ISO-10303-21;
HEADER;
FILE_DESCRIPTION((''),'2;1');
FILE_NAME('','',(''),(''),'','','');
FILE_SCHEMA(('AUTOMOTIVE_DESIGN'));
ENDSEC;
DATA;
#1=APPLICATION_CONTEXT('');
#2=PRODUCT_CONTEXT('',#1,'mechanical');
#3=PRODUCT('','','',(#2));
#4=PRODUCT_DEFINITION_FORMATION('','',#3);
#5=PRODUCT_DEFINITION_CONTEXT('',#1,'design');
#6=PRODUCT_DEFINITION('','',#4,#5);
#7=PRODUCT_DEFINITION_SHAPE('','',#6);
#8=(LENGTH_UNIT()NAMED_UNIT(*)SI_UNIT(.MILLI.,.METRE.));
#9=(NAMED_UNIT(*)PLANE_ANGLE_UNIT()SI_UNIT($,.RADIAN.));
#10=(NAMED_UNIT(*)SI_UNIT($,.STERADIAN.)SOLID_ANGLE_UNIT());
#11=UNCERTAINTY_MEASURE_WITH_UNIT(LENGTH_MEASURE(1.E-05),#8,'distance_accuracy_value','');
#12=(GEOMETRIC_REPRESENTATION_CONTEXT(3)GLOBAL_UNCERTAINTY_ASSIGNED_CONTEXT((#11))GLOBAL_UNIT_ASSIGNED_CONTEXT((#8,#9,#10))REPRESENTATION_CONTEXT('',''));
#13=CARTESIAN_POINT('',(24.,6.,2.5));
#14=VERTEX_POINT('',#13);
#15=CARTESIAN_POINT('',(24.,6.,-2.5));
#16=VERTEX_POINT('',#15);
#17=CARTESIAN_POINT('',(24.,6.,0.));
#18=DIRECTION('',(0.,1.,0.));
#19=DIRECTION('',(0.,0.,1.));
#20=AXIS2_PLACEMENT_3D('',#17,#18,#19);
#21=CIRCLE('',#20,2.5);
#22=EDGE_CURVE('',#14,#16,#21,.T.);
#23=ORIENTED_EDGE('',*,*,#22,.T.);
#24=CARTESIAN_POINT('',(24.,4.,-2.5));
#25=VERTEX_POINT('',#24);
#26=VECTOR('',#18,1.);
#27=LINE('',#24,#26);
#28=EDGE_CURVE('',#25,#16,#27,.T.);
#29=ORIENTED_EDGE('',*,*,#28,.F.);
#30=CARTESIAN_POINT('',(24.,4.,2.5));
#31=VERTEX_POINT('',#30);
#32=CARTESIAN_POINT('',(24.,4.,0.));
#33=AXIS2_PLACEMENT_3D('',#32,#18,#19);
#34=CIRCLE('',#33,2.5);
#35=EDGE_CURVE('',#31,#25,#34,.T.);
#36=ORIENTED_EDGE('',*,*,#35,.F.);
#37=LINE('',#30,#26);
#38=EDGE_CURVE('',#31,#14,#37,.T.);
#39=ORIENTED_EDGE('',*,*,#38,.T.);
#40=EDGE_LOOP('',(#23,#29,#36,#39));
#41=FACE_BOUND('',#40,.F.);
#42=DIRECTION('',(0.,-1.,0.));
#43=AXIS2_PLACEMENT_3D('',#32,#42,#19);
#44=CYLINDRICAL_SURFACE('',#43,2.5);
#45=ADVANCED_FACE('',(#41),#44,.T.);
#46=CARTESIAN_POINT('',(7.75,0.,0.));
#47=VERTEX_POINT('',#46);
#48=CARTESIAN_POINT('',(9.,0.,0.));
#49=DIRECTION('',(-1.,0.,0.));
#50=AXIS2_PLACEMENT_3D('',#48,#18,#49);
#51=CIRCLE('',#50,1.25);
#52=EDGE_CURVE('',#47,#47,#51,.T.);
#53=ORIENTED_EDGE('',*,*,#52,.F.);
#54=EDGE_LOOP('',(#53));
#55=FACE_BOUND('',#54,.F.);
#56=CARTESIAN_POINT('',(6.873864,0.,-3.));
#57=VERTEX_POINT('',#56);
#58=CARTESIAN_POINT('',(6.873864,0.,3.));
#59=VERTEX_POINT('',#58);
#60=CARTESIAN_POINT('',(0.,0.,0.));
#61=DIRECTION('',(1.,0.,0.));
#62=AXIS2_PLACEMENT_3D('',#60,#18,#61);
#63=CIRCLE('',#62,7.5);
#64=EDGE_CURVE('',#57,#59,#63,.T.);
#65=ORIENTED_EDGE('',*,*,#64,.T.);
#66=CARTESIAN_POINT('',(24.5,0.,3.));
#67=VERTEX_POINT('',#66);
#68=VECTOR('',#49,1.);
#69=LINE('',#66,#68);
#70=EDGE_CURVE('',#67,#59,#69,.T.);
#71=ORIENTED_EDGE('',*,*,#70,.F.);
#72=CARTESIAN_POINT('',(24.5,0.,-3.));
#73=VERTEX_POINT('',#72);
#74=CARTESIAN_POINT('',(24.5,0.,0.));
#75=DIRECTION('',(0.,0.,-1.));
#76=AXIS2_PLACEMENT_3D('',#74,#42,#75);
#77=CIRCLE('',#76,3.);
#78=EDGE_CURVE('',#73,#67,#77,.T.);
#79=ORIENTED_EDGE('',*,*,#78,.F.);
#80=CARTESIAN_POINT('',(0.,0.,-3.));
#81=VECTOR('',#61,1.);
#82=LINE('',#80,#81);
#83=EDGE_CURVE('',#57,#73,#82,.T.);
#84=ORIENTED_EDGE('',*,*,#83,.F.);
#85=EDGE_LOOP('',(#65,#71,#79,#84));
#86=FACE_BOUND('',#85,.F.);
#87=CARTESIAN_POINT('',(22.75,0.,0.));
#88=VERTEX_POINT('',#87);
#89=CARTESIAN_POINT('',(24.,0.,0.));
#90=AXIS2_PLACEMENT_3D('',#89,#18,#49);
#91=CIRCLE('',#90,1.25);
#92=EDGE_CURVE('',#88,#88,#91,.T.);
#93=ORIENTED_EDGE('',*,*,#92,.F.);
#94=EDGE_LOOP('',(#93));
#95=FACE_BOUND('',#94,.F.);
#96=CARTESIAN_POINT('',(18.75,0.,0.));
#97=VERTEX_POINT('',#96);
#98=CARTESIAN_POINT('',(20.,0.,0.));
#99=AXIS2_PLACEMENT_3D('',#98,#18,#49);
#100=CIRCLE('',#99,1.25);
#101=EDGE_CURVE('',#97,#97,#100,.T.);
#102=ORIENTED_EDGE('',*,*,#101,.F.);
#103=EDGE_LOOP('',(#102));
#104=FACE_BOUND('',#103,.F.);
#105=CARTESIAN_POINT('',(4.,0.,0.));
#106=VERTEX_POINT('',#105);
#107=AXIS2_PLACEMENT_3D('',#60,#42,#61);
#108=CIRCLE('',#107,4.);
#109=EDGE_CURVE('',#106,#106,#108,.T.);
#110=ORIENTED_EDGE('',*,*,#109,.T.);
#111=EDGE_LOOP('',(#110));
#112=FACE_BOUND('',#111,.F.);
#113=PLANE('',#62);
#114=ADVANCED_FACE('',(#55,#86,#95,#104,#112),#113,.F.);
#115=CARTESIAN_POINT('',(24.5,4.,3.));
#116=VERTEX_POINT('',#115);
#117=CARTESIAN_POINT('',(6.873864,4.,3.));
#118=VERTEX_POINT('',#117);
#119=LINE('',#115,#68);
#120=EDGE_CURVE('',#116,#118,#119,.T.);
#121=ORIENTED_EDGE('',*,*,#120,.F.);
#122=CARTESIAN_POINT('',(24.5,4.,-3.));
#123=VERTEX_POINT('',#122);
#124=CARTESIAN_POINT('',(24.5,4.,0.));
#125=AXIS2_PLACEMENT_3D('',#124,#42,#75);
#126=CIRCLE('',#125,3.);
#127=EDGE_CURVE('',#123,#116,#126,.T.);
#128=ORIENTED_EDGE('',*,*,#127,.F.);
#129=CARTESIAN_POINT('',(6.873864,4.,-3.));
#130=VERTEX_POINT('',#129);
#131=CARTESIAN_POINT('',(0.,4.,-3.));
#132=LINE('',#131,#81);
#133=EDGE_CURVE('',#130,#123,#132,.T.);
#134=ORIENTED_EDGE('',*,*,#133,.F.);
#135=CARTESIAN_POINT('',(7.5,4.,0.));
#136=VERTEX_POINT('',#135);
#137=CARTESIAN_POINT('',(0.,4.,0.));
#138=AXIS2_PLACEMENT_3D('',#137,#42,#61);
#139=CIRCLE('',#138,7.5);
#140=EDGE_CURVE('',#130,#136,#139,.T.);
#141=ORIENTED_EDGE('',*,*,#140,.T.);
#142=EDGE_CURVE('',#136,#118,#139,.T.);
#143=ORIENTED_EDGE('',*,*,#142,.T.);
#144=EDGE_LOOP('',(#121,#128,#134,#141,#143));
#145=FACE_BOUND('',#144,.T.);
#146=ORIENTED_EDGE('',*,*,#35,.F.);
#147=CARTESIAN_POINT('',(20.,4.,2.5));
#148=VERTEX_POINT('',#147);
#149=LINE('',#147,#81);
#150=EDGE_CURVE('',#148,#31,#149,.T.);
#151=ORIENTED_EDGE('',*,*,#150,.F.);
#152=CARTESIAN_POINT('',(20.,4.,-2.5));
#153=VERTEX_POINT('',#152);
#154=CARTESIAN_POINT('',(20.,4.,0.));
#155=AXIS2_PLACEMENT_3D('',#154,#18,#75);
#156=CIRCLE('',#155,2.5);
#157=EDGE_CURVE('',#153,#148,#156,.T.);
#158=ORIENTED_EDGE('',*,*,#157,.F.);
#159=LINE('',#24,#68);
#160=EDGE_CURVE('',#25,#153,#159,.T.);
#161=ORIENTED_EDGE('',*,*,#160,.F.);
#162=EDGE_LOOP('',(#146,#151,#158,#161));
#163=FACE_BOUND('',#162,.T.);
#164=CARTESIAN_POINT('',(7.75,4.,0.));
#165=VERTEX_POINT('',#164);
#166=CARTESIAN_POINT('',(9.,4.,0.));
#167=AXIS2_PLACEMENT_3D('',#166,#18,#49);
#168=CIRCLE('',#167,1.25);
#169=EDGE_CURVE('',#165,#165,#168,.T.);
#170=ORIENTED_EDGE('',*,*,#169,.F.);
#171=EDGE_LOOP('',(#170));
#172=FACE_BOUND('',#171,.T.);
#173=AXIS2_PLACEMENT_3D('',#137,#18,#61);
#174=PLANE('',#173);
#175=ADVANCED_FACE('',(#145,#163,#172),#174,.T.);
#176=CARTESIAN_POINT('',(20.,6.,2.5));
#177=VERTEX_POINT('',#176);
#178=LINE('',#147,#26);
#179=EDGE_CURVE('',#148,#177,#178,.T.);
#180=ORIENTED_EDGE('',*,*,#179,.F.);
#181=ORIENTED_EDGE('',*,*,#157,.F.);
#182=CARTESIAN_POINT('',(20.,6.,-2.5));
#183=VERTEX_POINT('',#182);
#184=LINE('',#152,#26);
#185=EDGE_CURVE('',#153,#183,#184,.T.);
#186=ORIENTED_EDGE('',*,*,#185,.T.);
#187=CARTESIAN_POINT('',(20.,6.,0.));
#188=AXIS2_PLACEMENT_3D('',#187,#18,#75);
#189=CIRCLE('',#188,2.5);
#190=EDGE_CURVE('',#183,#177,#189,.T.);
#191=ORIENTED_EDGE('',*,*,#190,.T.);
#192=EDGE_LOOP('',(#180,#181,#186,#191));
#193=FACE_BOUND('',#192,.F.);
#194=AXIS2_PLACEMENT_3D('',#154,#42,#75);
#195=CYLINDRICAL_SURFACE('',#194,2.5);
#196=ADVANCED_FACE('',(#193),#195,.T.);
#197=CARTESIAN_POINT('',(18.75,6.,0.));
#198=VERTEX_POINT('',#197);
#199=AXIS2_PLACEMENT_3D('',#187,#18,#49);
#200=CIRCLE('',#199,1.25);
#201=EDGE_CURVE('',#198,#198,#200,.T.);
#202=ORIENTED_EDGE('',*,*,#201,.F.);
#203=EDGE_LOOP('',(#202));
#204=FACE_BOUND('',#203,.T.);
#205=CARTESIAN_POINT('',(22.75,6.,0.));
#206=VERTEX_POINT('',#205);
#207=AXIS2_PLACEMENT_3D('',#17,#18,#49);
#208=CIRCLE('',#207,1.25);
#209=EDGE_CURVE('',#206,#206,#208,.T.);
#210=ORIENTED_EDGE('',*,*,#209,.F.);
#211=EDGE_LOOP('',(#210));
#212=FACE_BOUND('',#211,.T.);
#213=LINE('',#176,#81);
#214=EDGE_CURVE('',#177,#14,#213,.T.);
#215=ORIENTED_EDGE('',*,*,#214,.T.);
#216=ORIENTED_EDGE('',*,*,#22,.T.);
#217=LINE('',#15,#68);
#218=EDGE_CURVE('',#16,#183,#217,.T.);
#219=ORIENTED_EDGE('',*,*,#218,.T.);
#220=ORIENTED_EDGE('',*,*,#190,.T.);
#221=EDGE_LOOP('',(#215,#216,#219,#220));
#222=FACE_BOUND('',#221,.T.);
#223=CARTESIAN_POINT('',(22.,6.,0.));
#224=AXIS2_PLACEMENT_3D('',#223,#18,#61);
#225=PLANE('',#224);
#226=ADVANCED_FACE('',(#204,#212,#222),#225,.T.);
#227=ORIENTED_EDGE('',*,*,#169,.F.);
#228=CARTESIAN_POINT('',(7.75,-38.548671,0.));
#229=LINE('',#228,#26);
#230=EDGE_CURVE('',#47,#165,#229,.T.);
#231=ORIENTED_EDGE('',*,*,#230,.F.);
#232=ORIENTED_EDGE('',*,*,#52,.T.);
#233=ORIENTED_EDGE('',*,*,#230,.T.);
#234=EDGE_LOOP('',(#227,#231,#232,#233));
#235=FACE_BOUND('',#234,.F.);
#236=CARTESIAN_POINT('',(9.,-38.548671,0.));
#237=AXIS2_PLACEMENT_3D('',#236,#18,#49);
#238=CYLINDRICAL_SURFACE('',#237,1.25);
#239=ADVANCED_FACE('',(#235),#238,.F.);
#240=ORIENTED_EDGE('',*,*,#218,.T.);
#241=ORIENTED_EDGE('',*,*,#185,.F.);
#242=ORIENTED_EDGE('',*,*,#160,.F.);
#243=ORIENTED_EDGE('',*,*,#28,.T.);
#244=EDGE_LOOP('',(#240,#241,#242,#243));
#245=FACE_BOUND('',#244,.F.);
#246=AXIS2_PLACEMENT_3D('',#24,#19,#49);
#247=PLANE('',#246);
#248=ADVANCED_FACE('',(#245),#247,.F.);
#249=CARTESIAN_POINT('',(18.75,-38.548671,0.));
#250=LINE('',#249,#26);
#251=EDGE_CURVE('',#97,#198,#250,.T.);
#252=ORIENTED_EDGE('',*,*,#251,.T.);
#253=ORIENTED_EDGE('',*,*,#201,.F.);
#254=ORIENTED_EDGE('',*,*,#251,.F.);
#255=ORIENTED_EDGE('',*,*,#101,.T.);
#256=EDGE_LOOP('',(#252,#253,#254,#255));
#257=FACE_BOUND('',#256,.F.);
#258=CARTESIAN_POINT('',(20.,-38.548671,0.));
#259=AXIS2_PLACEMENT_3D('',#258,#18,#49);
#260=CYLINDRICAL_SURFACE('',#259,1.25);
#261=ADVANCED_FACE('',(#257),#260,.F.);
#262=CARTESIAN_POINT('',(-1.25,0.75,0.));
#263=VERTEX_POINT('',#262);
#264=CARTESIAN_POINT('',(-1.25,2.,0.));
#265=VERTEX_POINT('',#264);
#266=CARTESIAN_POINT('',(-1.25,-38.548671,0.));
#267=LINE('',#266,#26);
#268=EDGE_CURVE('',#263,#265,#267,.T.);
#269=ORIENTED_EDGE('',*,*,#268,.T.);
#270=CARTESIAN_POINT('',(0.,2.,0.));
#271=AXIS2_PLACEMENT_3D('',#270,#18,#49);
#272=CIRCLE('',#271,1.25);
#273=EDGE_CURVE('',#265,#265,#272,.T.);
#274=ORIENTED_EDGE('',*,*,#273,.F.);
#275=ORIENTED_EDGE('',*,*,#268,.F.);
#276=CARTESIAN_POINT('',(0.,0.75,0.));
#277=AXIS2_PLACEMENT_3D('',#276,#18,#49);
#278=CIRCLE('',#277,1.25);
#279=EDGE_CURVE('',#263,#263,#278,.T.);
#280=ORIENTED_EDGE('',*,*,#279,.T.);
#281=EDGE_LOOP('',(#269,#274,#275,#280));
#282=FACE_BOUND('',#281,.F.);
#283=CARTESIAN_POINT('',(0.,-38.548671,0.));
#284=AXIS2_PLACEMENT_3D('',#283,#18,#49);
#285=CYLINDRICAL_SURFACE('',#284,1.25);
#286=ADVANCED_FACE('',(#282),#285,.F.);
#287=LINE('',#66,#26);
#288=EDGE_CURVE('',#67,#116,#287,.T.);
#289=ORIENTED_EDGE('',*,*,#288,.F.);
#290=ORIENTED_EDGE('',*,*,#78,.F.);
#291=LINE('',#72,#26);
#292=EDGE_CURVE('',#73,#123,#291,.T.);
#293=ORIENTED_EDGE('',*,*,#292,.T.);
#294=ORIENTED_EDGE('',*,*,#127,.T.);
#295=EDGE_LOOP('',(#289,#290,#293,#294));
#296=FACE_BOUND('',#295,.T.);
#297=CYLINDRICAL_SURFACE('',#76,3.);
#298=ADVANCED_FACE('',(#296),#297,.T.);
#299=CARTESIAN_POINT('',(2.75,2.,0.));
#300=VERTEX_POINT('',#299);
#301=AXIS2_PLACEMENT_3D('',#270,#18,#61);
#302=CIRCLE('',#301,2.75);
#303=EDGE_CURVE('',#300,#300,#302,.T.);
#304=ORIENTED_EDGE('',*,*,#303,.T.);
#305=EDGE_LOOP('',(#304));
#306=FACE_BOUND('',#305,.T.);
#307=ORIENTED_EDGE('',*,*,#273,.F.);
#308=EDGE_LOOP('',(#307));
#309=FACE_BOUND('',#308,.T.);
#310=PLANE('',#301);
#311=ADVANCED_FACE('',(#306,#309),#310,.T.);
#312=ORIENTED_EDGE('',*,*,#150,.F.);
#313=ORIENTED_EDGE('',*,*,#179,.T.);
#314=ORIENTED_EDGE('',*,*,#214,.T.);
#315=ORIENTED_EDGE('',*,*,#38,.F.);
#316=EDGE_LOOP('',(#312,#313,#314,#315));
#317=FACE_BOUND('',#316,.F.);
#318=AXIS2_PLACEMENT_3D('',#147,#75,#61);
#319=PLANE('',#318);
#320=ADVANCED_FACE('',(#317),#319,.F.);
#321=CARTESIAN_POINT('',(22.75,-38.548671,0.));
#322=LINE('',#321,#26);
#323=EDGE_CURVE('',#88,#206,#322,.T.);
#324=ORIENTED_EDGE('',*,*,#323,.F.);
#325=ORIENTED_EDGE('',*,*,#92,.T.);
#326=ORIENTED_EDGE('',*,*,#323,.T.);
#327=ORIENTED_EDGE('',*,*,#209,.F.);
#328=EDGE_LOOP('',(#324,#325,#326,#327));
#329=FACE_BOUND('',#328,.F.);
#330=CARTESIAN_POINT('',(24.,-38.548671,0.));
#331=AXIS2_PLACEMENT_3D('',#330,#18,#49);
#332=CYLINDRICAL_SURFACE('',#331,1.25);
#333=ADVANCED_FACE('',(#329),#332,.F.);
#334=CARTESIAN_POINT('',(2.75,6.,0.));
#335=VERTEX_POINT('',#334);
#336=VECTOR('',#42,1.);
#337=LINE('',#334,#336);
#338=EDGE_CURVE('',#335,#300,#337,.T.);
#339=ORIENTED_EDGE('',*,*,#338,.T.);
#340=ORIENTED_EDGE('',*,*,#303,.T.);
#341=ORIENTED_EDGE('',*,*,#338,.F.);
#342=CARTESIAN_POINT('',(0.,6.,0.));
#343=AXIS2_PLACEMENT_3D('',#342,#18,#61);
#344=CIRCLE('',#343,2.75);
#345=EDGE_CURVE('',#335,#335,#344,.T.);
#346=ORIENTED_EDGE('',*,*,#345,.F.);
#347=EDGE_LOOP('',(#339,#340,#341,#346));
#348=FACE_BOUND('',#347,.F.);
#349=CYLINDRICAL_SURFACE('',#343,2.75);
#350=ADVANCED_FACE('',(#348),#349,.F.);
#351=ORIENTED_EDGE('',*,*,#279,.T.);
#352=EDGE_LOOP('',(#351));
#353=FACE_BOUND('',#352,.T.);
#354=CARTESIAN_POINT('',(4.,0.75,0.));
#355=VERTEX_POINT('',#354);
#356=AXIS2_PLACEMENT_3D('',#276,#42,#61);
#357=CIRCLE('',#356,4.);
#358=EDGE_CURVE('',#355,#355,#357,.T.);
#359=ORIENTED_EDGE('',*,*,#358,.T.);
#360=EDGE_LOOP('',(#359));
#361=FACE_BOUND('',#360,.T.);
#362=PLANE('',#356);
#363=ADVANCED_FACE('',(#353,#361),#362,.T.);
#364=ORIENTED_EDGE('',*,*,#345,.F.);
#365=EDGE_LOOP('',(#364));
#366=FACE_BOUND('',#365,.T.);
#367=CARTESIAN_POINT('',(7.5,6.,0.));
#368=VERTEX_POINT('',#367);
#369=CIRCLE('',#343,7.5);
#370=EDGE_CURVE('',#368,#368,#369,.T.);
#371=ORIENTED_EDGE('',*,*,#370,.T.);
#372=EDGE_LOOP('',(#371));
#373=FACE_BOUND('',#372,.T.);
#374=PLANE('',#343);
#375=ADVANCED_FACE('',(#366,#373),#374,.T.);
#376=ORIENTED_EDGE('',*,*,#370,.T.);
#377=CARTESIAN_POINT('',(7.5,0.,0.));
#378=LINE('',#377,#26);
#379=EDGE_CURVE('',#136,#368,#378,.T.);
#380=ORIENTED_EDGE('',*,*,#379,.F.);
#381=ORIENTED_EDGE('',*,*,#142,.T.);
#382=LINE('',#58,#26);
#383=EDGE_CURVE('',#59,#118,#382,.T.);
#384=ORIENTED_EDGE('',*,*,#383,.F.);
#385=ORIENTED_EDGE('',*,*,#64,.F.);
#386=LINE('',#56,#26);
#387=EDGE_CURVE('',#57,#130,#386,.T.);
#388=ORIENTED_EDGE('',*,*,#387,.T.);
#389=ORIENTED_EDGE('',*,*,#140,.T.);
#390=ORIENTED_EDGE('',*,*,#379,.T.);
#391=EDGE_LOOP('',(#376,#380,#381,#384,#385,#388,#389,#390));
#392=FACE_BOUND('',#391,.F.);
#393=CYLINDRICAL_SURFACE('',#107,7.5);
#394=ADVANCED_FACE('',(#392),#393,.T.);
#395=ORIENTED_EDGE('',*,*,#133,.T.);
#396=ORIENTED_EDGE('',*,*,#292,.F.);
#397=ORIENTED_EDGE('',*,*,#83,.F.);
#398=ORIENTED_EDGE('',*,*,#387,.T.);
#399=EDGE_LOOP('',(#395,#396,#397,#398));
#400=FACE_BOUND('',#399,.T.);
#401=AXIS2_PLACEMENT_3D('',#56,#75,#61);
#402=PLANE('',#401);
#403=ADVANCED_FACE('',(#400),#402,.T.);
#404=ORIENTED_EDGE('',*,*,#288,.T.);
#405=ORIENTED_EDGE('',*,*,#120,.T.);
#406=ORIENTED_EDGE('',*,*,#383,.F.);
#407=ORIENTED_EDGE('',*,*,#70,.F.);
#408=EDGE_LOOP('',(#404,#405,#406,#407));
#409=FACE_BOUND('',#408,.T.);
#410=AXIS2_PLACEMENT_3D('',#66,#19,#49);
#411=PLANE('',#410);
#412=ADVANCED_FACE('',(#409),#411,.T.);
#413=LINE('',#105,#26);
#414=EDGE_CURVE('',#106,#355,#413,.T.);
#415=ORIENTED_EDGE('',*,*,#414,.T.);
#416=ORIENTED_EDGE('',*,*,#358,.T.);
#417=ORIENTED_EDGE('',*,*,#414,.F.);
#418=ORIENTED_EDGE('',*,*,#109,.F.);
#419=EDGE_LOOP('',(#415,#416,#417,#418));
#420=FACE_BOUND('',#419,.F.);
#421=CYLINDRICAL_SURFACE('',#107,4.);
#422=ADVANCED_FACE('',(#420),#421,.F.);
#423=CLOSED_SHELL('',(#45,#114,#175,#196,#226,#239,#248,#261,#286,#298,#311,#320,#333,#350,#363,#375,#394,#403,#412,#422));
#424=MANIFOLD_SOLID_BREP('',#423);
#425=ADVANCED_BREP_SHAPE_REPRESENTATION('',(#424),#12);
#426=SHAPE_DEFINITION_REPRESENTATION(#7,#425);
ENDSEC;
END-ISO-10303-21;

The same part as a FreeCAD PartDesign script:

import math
import FreeCAD as App
import Part
import Sketcher

V = App.Vector

doc = App.newDocument("Part")
body = doc.addObject("PartDesign::Body", "Body")

sketch1 = body.newObject("Sketcher::SketchObject", "Sketch")
sketch1.AttachmentSupport = (doc.getObject("XZ_Plane"), [""])
sketch1.MapMode = "FlatFace"
sketch1.addGeometry([
    Part.ArcOfCircle(Part.Circle(V(24.5, 0, 0), V(0, 0, 1), 3), math.radians(-90), math.radians(90)),
    Part.LineSegment(V(24.5, -3, 0), V(6.873864, -3, 0)),
    Part.ArcOfCircle(Part.Circle(V(0, 0, 0), V(0, 0, 1), 7.5), math.radians(23.578178), math.radians(336.421822)),
    Part.LineSegment(V(6.873864, 3, 0), V(24.5, 3, 0)),
], False)
sketch1.addConstraint([
    Sketcher.Constraint("Tangent", 0, 1, 1, 1),
    Sketcher.Constraint("Coincident", 1, 2, 2, 2),
    Sketcher.Constraint("Coincident", 2, 1, 3, 1),
    Sketcher.Constraint("Tangent", 3, 2, 0, 2),
    Sketcher.Constraint("Horizontal", 1),
    Sketcher.Constraint("Horizontal", 3),
    Sketcher.Constraint("Coincident", 2, 3, -1, 1),
    Sketcher.Constraint("PointOnObject", 0, 3, -1),
    Sketcher.Constraint("Radius", 0, 3.0),
    Sketcher.Constraint("Radius", 2, 7.5),
    Sketcher.Constraint("DistanceX", -1, 1, 0, 3, 24.5),
])
pad1 = body.newObject("PartDesign::Pad", "Pad")
pad1.Profile = sketch1
pad1.Length = 4
pad1.Reversed = True

sketch2 = body.newObject("Sketcher::SketchObject", "Sketch001")
sketch2.AttachmentSupport = (doc.getObject("XZ_Plane"), [""])
sketch2.MapMode = "FlatFace"
sketch2.addGeometry(Part.Circle(V(0, 0, 0), V(0, 0, 1), 7.5), False)
sketch2.addConstraint([
    Sketcher.Constraint("Coincident", 0, 3, -1, 1),
    Sketcher.Constraint("Diameter", 0, 15.0),
])
pad2 = body.newObject("PartDesign::Pad", "Pad001")
pad2.Profile = sketch2
pad2.Length = 6
pad2.Reversed = True

sketch3 = body.newObject("Sketcher::SketchObject", "Sketch002")
sketch3.AttachmentSupport = (doc.getObject("XZ_Plane"), [""])
sketch3.MapMode = "FlatFace"
sketch3.AttachmentOffset = App.Placement(V(0, 0, -4), App.Rotation())
sketch3.addGeometry([
    Part.LineSegment(V(20, 2.5, 0), V(24, 2.5, 0)),
    Part.ArcOfCircle(Part.Circle(V(24, 0, 0), V(0, 0, 1), 2.5), math.radians(-90), math.radians(90)),
    Part.LineSegment(V(24, -2.5, 0), V(20, -2.5, 0)),
    Part.ArcOfCircle(Part.Circle(V(20, 0, 0), V(0, 0, 1), 2.5), math.radians(90), math.radians(270)),
], False)
sketch3.addConstraint([
    Sketcher.Constraint("Tangent", 0, 2, 1, 2),
    Sketcher.Constraint("Tangent", 1, 1, 2, 1),
    Sketcher.Constraint("Tangent", 2, 2, 3, 2),
    Sketcher.Constraint("Tangent", 3, 1, 0, 1),
    Sketcher.Constraint("Horizontal", 0),
    Sketcher.Constraint("Horizontal", 2),
    Sketcher.Constraint("PointOnObject", 1, 3, -1),
    Sketcher.Constraint("Radius", 1, 2.5),
    Sketcher.Constraint("DistanceX", 0, 1, 0, 2, 4.0),
    Sketcher.Constraint("DistanceX", -1, 1, 1, 3, 24.0),
])
pad3 = body.newObject("PartDesign::Pad", "Pad002")
pad3.Profile = sketch3
pad3.Length = 2
pad3.Reversed = True

sketch4 = body.newObject("Sketcher::SketchObject", "Sketch003")
sketch4.AttachmentSupport = (doc.getObject("XZ_Plane"), [""])
sketch4.MapMode = "FlatFace"
sketch4.addGeometry([
    Part.Circle(V(20, 0, 0), V(0, 0, 1), 1.25),
    Part.Circle(V(24, 0, 0), V(0, 0, 1), 1.25),
    Part.Circle(V(0, 0, 0), V(0, 0, 1), 1.25),
    Part.Circle(V(9, 0, 0), V(0, 0, 1), 1.25),
], False)
sketch4.addConstraint([
    Sketcher.Constraint("Coincident", 2, 3, -1, 1),
    Sketcher.Constraint("Equal", 0, 1),
    Sketcher.Constraint("Equal", 1, 2),
    Sketcher.Constraint("Equal", 2, 3),
    Sketcher.Constraint("PointOnObject", 0, 3, -1),
    Sketcher.Constraint("PointOnObject", 1, 3, -1),
    Sketcher.Constraint("PointOnObject", 3, 3, -1),
    Sketcher.Constraint("Diameter", 0, 2.5),
    Sketcher.Constraint("DistanceX", -1, 1, 0, 3, 20.0),
    Sketcher.Constraint("DistanceX", -1, 1, 1, 3, 24.0),
    Sketcher.Constraint("DistanceX", -1, 1, 3, 3, 9.0),
])
doc.recompute()
hole = body.newObject("PartDesign::Hole", "Hole")
hole.Profile = sketch4
hole.ThreadType = "None"
hole.Diameter = 2.5
hole.DepthType = "ThroughAll"

sketch5 = body.newObject("Sketcher::SketchObject", "Sketch004")
sketch5.AttachmentSupport = (doc.getObject("XZ_Plane"), [""])
sketch5.MapMode = "FlatFace"
sketch5.AttachmentOffset = App.Placement(V(0, 0, -6), App.Rotation())
sketch5.addGeometry(Part.Circle(V(0, 0, 0), V(0, 0, 1), 2.75), False)
sketch5.addConstraint([
    Sketcher.Constraint("Coincident", 0, 3, -1, 1),
    Sketcher.Constraint("Diameter", 0, 5.5),
])
pocket1 = body.newObject("PartDesign::Pocket", "Pocket")
pocket1.Profile = sketch5
pocket1.Type = "TwoLengths"
pocket1.Length = 1
pocket1.Length2 = 4

sketch6 = body.newObject("Sketcher::SketchObject", "Sketch005")
sketch6.AttachmentSupport = (doc.getObject("XZ_Plane"), [""])
sketch6.MapMode = "FlatFace"
sketch6.addGeometry(Part.Circle(V(0, 0, 0), V(0, 0, 1), 4), False)
sketch6.addConstraint([
    Sketcher.Constraint("Coincident", 0, 3, -1, 1),
    Sketcher.Constraint("Diameter", 0, 8.0),
])
pocket2 = body.newObject("PartDesign::Pocket", "Pocket001")
pocket2.Profile = sketch6
pocket2.Length = 0.75

doc.recompute()
